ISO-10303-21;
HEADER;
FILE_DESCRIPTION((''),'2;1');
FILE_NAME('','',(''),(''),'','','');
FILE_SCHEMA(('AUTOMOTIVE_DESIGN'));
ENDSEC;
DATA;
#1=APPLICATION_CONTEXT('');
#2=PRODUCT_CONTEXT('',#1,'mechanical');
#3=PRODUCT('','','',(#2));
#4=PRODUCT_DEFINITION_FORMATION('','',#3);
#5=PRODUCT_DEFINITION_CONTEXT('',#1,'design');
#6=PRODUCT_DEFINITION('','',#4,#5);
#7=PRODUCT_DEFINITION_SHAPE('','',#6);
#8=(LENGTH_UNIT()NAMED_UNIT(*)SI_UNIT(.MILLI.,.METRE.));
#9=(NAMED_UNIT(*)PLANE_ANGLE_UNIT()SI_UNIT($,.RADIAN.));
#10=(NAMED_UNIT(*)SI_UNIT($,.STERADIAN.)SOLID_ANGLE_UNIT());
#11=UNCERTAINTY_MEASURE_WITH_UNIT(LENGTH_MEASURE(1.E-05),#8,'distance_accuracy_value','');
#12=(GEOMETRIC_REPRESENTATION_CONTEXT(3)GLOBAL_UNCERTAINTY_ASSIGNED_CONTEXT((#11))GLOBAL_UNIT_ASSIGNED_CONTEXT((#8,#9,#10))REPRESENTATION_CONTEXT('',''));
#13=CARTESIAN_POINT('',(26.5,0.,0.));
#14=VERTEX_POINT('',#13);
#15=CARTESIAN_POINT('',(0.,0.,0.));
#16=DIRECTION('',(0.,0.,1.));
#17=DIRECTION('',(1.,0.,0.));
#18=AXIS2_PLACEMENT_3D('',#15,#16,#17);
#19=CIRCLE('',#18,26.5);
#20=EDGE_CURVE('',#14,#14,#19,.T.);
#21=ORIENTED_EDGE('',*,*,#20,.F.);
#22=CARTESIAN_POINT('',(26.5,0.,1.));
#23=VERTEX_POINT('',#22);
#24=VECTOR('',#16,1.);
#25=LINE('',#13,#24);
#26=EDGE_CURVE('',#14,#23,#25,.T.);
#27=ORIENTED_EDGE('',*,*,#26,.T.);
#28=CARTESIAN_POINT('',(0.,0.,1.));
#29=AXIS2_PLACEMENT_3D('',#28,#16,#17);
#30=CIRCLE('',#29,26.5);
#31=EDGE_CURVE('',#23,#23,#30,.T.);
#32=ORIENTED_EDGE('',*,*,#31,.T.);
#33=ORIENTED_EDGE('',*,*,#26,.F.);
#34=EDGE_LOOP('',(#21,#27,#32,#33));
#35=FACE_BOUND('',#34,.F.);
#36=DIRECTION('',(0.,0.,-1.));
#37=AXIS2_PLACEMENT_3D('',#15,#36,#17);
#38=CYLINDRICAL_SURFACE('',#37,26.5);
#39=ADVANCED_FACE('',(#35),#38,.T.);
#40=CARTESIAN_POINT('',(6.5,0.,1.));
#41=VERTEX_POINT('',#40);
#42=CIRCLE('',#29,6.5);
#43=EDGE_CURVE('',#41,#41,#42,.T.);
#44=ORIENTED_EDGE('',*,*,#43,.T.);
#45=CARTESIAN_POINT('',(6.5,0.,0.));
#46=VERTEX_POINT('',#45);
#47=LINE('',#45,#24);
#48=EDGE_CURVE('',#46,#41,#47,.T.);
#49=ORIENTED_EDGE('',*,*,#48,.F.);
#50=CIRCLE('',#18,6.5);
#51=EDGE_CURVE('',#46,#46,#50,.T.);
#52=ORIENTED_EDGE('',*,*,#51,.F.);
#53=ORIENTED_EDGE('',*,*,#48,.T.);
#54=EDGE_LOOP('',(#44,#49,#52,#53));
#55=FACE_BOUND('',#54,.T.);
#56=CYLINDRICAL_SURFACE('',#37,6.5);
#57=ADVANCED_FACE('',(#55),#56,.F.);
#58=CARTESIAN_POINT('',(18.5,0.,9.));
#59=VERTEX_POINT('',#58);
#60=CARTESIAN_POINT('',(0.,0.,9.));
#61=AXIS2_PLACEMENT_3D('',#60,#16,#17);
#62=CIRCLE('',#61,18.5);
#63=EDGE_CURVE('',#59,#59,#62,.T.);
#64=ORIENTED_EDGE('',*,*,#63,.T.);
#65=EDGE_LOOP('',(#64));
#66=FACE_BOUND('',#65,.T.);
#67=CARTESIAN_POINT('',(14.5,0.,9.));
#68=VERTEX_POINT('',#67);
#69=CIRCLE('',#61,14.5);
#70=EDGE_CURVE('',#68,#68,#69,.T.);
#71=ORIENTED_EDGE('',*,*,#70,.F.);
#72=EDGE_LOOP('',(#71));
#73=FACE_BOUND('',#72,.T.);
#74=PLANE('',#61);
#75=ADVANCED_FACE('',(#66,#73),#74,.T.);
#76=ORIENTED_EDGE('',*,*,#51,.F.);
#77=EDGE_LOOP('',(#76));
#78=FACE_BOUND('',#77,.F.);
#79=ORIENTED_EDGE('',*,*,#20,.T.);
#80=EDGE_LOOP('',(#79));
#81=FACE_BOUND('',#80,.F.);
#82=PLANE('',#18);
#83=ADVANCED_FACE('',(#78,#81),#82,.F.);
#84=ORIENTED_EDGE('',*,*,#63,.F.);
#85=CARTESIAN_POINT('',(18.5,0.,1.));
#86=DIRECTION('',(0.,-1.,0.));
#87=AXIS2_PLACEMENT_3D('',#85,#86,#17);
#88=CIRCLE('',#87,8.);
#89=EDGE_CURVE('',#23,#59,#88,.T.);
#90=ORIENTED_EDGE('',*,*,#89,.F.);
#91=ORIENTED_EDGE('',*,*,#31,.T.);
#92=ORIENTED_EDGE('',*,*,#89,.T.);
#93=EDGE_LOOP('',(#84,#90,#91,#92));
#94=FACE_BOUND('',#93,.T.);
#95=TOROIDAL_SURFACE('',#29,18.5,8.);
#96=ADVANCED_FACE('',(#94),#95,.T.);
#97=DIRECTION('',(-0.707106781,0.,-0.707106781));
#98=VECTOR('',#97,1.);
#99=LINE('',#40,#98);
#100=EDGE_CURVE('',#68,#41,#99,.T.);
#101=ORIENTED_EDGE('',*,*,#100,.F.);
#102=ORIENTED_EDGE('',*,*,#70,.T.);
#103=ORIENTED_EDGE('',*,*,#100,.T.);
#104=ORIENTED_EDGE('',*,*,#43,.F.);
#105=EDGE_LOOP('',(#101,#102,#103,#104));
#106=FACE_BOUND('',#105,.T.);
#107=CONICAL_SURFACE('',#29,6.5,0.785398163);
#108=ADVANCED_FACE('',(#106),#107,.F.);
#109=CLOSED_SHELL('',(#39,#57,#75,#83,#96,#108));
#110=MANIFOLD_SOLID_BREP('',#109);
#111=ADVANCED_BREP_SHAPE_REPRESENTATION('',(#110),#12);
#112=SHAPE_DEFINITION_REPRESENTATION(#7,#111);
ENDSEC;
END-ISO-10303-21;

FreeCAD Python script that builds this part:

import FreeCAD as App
import Part
import Sketcher
from FreeCAD import Vector
Q = App.Units.Quantity


def edges_at(feature, points):
    """Names of the edges that pass closest to the given points."""
    edges = feature.Shape.Edges
    near = lambda p: min(range(len(edges)), key=lambda i: edges[i].distToShape(Part.Vertex(*p))[0])
    return sorted({f"Edge{near(p) + 1}" for p in points})

doc = App.newDocument("Part")
params = doc.addObject("Spreadsheet::Sheet", "Params")
for row, (alias, value) in enumerate([
    ("sketch1_diameter", "53 mm"),
    ("sketch1_diameter2", "13 mm"),
    ("pad1_length", "9 mm"),
    ("fillet_radius", "8 mm"),
    ("chamfer_size", "8 mm"),
], start=1):
    params.set(f"A{row}", alias)
    params.set(f"B{row}", "=" + value)
    params.setAlias(f"B{row}", alias)

body = doc.addObject("PartDesign::Body", "Body")

# Sketch on XY plane
sketch1 = doc.addObject("Sketcher::SketchObject", "Sketch")
body.addObject(sketch1)
sketch1.AttachmentSupport = (doc.XY_Plane, [""])
sketch1.MapMode = "FlatFace"
sketch1.addGeometry([
    Part.Circle(Vector(0, 0, 0), Vector(0, 0, 1), 26),
    Part.Circle(Vector(0, 0, 0), Vector(0, 0, 1), 6),
], False)
sketch1.addConstraint([
    Sketcher.Constraint("Coincident", 0, 3, -1, 1),
    Sketcher.Constraint("Coincident", 1, 3, -1, 1),
    Sketcher.Constraint("Diameter", 0, Q("53 mm")),
    Sketcher.Constraint("Diameter", 1, Q("13 mm")),
])
sketch1.setExpression("Constraints[2]", "Params.sketch1_diameter")
sketch1.setExpression("Constraints[3]", "Params.sketch1_diameter2")
pad1 = doc.addObject("PartDesign::Pad", "Pad")
body.addObject(pad1)
pad1.Profile = sketch1
pad1.setExpression("Length", "Params.pad1_length")
doc.recompute()

fillet = doc.addObject("PartDesign::Fillet", "Fillet")
body.addObject(fillet)
fillet.Base = (pad1, edges_at(pad1, [(-26.5, 0, 9)]))
fillet.setExpression("Radius", "Params.fillet_radius")
doc.recompute()

chamfer = doc.addObject("PartDesign::Chamfer", "Chamfer")
body.addObject(chamfer)
chamfer.Base = (fillet, edges_at(fillet, [(-6.5, 0, 9)]))
chamfer.setExpression("Size", "Params.chamfer_size")

doc.recompute()
